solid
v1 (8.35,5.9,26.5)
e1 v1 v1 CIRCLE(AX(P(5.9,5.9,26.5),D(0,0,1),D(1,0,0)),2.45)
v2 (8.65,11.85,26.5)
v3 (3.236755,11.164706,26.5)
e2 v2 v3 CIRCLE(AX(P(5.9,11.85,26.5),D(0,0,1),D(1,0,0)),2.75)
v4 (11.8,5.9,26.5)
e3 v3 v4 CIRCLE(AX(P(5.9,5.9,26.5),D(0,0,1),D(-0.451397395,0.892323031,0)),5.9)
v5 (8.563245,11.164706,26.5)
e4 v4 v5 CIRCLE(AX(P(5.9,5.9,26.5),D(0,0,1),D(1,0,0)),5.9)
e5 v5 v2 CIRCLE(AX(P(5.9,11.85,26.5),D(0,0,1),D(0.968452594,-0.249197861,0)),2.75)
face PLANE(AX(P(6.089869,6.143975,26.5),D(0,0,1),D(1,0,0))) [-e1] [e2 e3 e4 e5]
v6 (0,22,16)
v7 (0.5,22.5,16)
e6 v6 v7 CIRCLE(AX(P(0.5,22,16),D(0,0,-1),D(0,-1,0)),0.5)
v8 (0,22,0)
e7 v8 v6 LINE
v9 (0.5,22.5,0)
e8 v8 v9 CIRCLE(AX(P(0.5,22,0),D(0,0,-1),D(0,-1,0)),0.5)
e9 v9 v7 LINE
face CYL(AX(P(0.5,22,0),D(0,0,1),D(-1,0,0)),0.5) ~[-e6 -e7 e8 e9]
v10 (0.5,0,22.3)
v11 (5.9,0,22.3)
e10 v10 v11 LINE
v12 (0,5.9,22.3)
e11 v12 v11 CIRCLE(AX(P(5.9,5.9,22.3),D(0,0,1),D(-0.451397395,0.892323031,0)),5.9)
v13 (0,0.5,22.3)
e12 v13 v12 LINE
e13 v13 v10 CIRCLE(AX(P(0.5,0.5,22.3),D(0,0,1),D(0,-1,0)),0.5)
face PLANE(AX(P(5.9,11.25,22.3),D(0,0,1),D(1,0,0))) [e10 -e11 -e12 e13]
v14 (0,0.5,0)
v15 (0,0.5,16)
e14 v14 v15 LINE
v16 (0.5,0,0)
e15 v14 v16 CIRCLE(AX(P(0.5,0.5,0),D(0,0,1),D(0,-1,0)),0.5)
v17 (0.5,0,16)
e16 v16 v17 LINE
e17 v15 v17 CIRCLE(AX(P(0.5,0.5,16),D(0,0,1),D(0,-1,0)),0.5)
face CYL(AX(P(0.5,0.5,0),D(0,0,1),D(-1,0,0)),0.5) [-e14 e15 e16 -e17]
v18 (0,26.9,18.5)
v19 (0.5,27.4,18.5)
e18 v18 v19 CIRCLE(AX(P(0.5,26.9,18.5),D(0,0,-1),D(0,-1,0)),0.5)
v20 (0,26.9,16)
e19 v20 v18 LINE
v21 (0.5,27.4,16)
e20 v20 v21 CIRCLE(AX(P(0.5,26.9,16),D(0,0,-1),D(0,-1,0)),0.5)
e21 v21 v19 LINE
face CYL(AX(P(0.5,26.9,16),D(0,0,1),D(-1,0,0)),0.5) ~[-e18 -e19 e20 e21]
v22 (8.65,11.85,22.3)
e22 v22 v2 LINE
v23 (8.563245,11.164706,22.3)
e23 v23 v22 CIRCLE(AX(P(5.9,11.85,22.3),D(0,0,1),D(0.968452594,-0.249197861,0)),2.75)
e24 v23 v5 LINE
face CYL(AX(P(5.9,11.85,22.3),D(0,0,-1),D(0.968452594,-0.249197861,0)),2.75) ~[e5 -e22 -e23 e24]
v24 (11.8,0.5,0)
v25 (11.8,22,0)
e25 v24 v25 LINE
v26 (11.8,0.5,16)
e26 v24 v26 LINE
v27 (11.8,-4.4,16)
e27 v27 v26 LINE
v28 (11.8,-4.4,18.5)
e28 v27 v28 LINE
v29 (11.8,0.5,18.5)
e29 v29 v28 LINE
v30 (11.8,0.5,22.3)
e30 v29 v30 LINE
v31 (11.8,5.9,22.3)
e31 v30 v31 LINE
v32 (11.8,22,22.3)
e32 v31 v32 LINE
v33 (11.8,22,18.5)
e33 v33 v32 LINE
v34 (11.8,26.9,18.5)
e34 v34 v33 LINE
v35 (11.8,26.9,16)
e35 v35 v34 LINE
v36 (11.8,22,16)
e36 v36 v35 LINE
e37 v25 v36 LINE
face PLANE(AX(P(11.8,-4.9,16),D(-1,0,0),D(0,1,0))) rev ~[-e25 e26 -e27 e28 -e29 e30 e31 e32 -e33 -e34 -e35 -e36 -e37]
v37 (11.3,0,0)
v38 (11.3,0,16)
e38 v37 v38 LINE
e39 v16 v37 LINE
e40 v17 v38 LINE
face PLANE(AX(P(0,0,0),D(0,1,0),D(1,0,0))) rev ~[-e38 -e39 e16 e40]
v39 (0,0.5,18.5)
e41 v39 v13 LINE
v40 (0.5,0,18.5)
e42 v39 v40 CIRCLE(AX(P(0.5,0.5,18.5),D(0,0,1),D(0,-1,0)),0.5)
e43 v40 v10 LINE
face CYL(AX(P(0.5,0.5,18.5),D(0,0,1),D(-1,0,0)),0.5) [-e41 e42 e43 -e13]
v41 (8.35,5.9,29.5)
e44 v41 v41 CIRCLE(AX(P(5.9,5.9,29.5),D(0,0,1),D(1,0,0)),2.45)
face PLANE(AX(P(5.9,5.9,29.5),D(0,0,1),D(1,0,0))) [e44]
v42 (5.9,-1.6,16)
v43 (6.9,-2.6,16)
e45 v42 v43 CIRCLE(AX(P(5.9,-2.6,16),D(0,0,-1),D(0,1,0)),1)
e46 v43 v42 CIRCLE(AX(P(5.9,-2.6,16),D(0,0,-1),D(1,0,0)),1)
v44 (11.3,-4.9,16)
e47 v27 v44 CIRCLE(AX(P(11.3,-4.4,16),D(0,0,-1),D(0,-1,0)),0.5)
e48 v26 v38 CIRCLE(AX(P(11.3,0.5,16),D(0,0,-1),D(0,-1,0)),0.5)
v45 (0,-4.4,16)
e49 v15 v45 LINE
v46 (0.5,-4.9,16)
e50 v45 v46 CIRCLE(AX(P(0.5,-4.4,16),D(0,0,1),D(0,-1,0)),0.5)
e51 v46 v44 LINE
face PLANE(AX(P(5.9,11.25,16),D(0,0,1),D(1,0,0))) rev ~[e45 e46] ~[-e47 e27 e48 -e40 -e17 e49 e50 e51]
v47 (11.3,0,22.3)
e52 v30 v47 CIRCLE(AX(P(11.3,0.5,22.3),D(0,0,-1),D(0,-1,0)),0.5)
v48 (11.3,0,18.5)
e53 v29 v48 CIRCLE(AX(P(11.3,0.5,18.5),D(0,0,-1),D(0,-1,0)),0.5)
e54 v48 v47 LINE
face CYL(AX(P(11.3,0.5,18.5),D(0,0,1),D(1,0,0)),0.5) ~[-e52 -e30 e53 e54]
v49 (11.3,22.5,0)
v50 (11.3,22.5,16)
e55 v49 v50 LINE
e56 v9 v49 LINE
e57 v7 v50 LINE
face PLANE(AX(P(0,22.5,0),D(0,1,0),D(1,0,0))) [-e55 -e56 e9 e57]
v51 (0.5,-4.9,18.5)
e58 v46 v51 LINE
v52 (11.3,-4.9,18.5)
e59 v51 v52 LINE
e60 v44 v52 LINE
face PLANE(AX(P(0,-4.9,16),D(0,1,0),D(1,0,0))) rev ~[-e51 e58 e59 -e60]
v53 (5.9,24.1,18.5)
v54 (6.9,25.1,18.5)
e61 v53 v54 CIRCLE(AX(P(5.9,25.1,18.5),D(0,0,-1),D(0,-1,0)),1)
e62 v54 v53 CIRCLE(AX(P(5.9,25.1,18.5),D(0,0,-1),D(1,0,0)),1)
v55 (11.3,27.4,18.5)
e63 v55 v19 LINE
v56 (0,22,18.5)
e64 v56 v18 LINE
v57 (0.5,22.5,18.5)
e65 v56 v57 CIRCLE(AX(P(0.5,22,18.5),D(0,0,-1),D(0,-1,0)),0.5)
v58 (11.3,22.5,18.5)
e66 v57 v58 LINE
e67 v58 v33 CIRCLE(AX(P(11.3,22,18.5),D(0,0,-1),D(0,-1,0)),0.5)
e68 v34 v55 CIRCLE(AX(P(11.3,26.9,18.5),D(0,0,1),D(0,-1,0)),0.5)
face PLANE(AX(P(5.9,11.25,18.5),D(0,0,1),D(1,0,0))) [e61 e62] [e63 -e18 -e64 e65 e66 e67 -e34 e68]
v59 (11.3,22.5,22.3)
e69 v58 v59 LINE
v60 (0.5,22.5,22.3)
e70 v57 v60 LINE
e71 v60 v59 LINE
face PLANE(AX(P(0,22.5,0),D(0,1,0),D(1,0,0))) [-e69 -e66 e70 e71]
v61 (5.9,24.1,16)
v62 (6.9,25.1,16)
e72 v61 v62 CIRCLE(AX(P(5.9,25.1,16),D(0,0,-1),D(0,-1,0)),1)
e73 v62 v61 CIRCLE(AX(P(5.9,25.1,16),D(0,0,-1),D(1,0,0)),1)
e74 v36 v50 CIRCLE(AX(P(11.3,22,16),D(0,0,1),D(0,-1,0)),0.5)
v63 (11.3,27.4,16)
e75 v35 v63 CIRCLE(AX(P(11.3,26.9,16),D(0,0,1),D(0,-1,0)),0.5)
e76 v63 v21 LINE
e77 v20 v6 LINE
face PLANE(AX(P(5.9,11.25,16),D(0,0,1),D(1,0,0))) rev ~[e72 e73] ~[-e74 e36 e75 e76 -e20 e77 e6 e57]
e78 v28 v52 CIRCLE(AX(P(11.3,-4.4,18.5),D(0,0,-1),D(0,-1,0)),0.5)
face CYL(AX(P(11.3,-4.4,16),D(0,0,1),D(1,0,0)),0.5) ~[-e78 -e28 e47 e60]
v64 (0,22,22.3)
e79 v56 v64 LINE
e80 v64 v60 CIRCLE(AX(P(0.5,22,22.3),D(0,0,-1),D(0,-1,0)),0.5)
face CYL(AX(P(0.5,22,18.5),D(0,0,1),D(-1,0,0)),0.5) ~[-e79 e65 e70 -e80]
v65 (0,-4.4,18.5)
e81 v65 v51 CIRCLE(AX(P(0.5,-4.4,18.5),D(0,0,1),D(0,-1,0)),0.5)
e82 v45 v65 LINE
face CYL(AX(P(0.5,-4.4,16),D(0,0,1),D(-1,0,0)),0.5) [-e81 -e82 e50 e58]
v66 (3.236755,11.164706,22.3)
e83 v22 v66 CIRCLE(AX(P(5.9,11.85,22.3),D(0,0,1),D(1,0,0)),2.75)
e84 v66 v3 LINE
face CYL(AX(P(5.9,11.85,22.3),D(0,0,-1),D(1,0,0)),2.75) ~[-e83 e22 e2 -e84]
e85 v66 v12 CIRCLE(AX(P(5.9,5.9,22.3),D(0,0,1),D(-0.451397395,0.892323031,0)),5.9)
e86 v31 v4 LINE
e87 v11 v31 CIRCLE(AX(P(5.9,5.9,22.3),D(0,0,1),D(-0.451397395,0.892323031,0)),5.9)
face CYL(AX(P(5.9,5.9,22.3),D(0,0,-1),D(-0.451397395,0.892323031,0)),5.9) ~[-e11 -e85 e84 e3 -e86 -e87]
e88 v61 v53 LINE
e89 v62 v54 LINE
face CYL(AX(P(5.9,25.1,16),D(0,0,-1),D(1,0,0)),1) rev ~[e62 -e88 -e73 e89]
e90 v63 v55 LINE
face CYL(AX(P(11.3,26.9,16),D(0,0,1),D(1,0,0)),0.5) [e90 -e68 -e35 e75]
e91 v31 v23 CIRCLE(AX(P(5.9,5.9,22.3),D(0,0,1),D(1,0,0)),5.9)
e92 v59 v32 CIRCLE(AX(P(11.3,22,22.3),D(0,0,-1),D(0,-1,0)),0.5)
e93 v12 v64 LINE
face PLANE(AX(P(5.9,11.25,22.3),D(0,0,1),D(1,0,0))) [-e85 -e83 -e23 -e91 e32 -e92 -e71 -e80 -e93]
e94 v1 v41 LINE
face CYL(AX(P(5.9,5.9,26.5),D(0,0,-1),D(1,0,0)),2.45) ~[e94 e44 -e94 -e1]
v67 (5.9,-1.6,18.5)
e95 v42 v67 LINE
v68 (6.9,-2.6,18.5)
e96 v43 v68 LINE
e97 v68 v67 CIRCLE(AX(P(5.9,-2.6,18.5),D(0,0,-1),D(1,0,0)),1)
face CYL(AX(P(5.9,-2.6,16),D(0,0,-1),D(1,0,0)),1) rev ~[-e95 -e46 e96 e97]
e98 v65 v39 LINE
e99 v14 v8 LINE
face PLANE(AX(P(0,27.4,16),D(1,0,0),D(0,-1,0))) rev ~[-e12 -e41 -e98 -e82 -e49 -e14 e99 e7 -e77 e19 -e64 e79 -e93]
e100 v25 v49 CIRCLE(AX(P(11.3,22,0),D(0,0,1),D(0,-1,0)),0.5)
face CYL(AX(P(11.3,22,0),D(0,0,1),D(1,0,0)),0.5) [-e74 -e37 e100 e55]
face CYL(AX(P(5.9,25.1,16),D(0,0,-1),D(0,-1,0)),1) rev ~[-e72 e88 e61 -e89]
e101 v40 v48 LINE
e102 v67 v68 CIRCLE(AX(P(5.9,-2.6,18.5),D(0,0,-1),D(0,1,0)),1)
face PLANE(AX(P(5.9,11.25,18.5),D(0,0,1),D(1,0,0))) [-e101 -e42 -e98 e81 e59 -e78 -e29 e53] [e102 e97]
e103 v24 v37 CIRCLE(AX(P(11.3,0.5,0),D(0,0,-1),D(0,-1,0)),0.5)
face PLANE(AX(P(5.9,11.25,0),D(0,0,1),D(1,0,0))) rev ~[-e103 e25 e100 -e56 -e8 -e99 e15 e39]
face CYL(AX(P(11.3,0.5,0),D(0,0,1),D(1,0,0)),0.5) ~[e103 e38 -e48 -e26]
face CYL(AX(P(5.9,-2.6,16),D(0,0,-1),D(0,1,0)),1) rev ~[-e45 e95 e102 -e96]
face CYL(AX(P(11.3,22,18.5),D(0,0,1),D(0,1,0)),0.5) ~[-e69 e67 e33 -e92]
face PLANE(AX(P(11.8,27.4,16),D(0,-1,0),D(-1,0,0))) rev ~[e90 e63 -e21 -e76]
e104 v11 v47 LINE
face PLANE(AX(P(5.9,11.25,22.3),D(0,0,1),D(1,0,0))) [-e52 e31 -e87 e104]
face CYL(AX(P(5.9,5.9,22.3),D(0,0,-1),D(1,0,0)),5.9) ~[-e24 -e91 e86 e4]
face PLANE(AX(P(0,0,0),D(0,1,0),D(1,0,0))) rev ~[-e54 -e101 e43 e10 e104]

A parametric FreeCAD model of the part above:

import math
import FreeCAD as App
import Part
import Sketcher
from FreeCAD import Vector


def edges_at(feature, points):
    """Names of the edges that pass closest to the given points."""
    edges = feature.Shape.Edges
    near = lambda p: min(range(len(edges)), key=lambda i: edges[i].distToShape(Part.Vertex(*p))[0])
    return sorted({f"Edge{near(p) + 1}" for p in points})


def add_polygon(sketch, points):
    """Adds a closed chain of lines whose ends are joined by coincident constraints."""
    first, n = sketch.GeometryCount, len(points)
    for a, b in zip(points, points[1:] + points[:1]):
        sketch.addGeometry(Part.LineSegment(App.Vector(*a, 0), App.Vector(*b, 0)), False)
    for i in range(n):
        sketch.addConstraint(Sketcher.Constraint("Coincident", first + i, 2, first + (i + 1) % n, 1))

doc = App.newDocument("Part")
body = doc.addObject("PartDesign::Body", "Body")

# Sketch on XY plane
sketch1 = doc.addObject("Sketcher::SketchObject", "Sketch")
body.addObject(sketch1)
sketch1.AttachmentSupport = (doc.XY_Plane, [""])
sketch1.MapMode = "FlatFace"
add_polygon(sketch1, [(0, 22), (0, 0), (12, 0), (12, 22)])  # lines 0-3
sketch1.addConstraint([
    Sketcher.Constraint("Vertical", 0),
    Sketcher.Constraint("Horizontal", 1),
    Sketcher.Constraint("Vertical", 2),
    Sketcher.Constraint("Horizontal", 3),
    Sketcher.Constraint("Coincident", 0, 2, -1, 1),
    Sketcher.Constraint("DistanceX", 1, 1, 1, 2, 11.8),
    Sketcher.Constraint("DistanceY", 0, 2, 0, 1, 22.5),
])
pad1 = doc.addObject("PartDesign::Pad", "Pad")
body.addObject(pad1)
pad1.Profile = sketch1
pad1.Length = 22.3

# Sketch on XY plane
sketch2 = doc.addObject("Sketcher::SketchObject", "Sketch001")
body.addObject(sketch2)
sketch2.AttachmentSupport = (doc.XY_Plane, [""])
sketch2.MapMode = "FlatFace"
sketch2.AttachmentOffset = App.Placement(Vector(0, 0, 16), App.Rotation())
add_polygon(sketch2, [(11.8, 27.4), (0, 27.4), (0, -4.9), (11.8, -4.9)])  # lines 0-3
sketch2.addGeometry(Part.ArcOfCircle(Part.Circle(Vector(5.9, -2.6, 0), Vector(0, 0, 1), 1), math.radians(0), math.radians(90)), False)  # 4
sketch2.addGeometry(Part.ArcOfCircle(Part.Circle(Vector(5.9, -2.6, 0), Vector(0, 0, 1), 1), math.radians(90), math.radians(360)), False)  # 5
sketch2.addGeometry(Part.ArcOfCircle(Part.Circle(Vector(5.9, 25.1, 0), Vector(0, 0, 1), 1), math.radians(0), math.radians(270)), False)  # 6
sketch2.addGeometry(Part.ArcOfCircle(Part.Circle(Vector(5.9, 25.1, 0), Vector(0, 0, 1), 1), math.radians(-90), math.radians(0)), False)  # 7
sketch2.addConstraint([
    Sketcher.Constraint("Tangent", 4, 1, 5, 2),
    Sketcher.Constraint("Coincident", 5, 1, 4, 2),
    Sketcher.Constraint("Tangent", 6, 1, 7, 2),
    Sketcher.Constraint("Coincident", 7, 1, 6, 2),
    Sketcher.Constraint("Horizontal", 0),
    Sketcher.Constraint("Vertical", 1),
    Sketcher.Constraint("Horizontal", 2),
    Sketcher.Constraint("Vertical", 3),
    Sketcher.Constraint("Equal", 5, 6),
    Sketcher.Constraint("PointOnObject", 0, 2, -2),
    Sketcher.Constraint("Horizontal", 5, 3, 4, 1),
    Sketcher.Constraint("Horizontal", 7, 3, 6, 1),
    Sketcher.Constraint("Vertical", 5, 3, 6, 3),
    Sketcher.Constraint("Vertical", 7, 3, 5, 1),
    Sketcher.Constraint("Vertical", 5, 1, 7, 1),
    Sketcher.Constraint("Radius", 4, 1.0),
    Sketcher.Constraint("DistanceX", 0, 2, 0, 1, 11.8),
    Sketcher.Constraint("DistanceY", 1, 2, 1, 1, 32.3),
    Sketcher.Constraint("DistanceY", 4, 3, 0, 2, 30.0),
    Sketcher.Constraint("DistanceY", 1, 2, 6, 3, 30.0),
    Sketcher.Constraint("DistanceX", -1, 1, 4, 3, 5.9),
    Sketcher.Constraint("DistanceY", 4, 3, -1, 1, 2.6),
])
pad2 = doc.addObject("PartDesign::Pad", "Pad001")
body.addObject(pad2)
pad2.Profile = sketch2
pad2.Length = 2.5

# Sketch on XY plane
sketch3 = doc.addObject("Sketcher::SketchObject", "Sketch002")
body.addObject(sketch3)
sketch3.AttachmentSupport = (doc.XY_Plane, [""])
sketch3.MapMode = "FlatFace"
sketch3.AttachmentOffset = App.Placement(Vector(0, 0, 22.3), App.Rotation())
sketch3.addGeometry([
    Part.ArcOfCircle(Part.Circle(Vector(5.9, 5.9, 0), Vector(0, 0, 1), 5.9), math.radians(117), math.radians(360)),
    Part.ArcOfCircle(Part.Circle(Vector(5.9, 5.9, 0), Vector(0, 0, 1), 5.9), math.radians(0), math.radians(63)),
    Part.ArcOfCircle(Part.Circle(Vector(5.9, 11.8, 0), Vector(0, 0, 1), 2.8), math.radians(-14.43), math.radians(0)),
    Part.ArcOfCircle(Part.Circle(Vector(5.9, 11.8, 0), Vector(0, 0, 1), 2.8), math.radians(0), math.radians(194)),
], False)
sketch3.addConstraint([
    Sketcher.Constraint("Tangent", 0, 2, 1, 1),
    Sketcher.Constraint("Coincident", 1, 2, 2, 1),
    Sketcher.Constraint("Tangent", 2, 2, 3, 1),
    Sketcher.Constraint("Coincident", 3, 2, 0, 1),
    Sketcher.Constraint("Equal", 0, 1),
    Sketcher.Constraint("Equal", 2, 3),
    Sketcher.Constraint("Horizontal", 1, 3, 0, 2),
    Sketcher.Constraint("Horizontal", 3, 3, 2, 2),
    Sketcher.Constraint("Horizontal", 1, 2, 3, 2),
    Sketcher.Constraint("Radius", 0, 5.9),
    Sketcher.Constraint("Radius", 2, 2.75),
    Sketcher.Constraint("DistanceX", -1, 1, 0, 3, 5.9),
    Sketcher.Constraint("DistanceY", -1, 1, 0, 3, 5.9),
    Sketcher.Constraint("DistanceY", -1, 1, 2, 3, 11.85),
])
pad3 = doc.addObject("PartDesign::Pad", "Pad002")
body.addObject(pad3)
pad3.Profile = sketch3
pad3.Length = 4.2

# Sketch on XY plane
sketch4 = doc.addObject("Sketcher::SketchObject", "Sketch003")
body.addObject(sketch4)
sketch4.AttachmentSupport = (doc.XY_Plane, [""])
sketch4.MapMode = "FlatFace"
sketch4.AttachmentOffset = App.Placement(Vector(0, 0, 26.5), App.Rotation())
sketch4.addGeometry(Part.Circle(Vector(5.9, 5.9, 0), Vector(0, 0, 1), 2.5), False)
sketch4.addConstraint([
    Sketcher.Constraint("Diameter", 0, 4.9),
    Sketcher.Constraint("DistanceX", -1, 1, 0, 3, 5.9),
    Sketcher.Constraint("DistanceY", -1, 1, 0, 3, 5.9),
])
pad4 = doc.addObject("PartDesign::Pad", "Pad003")
body.addObject(pad4)
pad4.Profile = sketch4
pad4.Length = 3
doc.recompute()

fillet = doc.addObject("PartDesign::Fillet", "Fillet")
body.addObject(fillet)
fillet.Base = (pad4, edges_at(pad4, [
    (11.8, 0, 8),
    (11.8, 0, 20.4),
    (0, 0, 8),
    (0, 0, 20.4),
    (0, 22.5, 20.4),
    (0, 22.5, 8),
    (11.8, 22.5, 8),
    (11.8, 22.5, 20.4),
    (0, -4.9, 17.25),
    (11.8, -4.9, 17.25),
    (11.8, 27.4, 17.25),
    (0, 27.4, 17.25),
]))
fillet.Radius = 0.5

doc.recompute()
